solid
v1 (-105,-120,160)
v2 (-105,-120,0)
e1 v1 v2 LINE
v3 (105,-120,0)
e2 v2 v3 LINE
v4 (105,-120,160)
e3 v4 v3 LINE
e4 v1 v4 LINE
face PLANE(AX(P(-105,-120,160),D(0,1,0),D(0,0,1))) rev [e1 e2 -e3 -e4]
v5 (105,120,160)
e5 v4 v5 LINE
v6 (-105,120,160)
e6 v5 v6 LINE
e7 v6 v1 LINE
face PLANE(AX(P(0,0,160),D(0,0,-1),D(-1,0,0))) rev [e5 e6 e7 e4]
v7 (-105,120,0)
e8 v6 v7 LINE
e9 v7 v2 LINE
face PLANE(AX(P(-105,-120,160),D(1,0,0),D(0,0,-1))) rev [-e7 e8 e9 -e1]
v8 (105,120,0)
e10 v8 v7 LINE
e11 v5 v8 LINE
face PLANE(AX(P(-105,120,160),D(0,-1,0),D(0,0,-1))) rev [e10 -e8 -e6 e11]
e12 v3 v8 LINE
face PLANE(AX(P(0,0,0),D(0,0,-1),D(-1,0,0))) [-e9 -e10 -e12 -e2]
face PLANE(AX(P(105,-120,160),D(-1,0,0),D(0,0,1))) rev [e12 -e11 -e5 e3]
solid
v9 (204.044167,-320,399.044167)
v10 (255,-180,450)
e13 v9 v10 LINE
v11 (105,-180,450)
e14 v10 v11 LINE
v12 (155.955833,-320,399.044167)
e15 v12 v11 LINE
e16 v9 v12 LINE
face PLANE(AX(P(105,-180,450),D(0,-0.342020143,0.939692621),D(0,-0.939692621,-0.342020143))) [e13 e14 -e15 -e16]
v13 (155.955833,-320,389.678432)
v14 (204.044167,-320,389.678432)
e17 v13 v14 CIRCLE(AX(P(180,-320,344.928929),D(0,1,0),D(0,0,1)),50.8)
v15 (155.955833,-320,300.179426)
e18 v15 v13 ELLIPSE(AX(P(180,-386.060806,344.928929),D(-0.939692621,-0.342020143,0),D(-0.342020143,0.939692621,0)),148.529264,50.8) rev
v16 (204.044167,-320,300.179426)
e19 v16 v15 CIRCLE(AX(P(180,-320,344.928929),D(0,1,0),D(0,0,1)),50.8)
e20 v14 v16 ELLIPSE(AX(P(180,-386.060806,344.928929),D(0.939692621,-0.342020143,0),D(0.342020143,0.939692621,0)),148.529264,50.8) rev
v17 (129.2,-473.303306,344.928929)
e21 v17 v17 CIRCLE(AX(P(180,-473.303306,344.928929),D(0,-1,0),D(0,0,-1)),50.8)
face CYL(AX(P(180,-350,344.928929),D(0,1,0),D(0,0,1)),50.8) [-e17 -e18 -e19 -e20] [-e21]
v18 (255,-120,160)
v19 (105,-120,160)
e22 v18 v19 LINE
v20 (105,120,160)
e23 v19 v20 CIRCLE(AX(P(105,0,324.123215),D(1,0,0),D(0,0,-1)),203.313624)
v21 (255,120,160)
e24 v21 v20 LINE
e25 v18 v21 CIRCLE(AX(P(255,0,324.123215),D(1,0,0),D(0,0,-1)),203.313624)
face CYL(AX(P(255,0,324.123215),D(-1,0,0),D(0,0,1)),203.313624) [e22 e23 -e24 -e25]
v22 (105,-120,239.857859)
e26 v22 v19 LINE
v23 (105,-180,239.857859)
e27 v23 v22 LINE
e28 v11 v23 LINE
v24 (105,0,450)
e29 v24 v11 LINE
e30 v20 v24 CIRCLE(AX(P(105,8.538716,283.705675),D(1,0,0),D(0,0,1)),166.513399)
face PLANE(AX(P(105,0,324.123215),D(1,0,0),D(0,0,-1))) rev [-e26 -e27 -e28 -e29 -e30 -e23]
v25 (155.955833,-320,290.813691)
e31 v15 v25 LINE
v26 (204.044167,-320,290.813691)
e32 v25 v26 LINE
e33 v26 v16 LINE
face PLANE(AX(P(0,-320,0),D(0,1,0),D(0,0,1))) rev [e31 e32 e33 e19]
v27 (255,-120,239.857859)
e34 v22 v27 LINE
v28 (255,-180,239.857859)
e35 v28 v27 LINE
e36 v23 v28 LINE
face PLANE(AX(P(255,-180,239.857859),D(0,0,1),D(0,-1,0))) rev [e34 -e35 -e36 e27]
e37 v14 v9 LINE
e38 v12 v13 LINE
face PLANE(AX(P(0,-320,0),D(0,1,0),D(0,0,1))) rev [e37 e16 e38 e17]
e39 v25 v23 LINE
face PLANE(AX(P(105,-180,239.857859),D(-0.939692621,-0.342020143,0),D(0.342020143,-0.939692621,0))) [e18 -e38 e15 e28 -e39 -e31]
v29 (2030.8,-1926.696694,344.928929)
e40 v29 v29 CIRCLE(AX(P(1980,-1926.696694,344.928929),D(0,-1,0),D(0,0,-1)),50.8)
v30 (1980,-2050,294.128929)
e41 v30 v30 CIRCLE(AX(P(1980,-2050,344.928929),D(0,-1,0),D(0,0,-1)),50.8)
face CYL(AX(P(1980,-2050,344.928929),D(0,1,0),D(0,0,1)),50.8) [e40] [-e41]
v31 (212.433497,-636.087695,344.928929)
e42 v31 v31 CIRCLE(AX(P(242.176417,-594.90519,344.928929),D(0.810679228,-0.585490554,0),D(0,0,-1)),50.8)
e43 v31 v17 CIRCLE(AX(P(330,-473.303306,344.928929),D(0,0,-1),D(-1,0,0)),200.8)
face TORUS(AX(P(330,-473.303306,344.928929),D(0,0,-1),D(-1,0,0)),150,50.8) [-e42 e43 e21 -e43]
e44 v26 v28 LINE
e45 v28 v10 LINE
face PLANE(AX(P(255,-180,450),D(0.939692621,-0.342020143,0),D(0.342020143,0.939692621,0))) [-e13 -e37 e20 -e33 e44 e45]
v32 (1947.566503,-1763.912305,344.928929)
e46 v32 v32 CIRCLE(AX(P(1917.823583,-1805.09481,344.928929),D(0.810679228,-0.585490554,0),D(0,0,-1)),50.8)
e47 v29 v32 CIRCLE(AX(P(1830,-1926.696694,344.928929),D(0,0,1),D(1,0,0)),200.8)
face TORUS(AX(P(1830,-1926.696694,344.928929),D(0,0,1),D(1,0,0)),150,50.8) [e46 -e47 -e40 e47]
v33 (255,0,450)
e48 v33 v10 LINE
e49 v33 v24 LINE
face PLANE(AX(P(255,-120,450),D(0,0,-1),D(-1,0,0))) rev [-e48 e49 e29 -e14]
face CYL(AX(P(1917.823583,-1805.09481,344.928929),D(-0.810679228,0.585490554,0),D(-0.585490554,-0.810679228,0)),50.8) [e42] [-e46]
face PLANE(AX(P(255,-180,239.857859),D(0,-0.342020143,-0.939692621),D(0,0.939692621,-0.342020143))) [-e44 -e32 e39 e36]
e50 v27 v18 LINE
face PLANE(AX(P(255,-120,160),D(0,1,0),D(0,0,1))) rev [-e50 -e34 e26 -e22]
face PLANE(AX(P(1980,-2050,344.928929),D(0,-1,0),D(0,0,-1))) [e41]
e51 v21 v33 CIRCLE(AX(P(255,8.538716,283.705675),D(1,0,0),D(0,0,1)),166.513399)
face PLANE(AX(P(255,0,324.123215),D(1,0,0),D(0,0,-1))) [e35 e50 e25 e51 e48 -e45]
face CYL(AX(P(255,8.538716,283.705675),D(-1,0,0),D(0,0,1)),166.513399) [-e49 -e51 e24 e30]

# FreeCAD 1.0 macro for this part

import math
import FreeCAD as App
import Part
import Sketcher

V = App.Vector


def add_polygon(sketch, points):
    """Adds a closed chain of lines whose ends are joined by coincident constraints."""
    first, n = sketch.GeometryCount, len(points)
    for a, b in zip(points, points[1:] + points[:1]):
        sketch.addGeometry(Part.LineSegment(App.Vector(*a, 0), App.Vector(*b, 0)), False)
    for i in range(n):
        sketch.addConstraint(Sketcher.Constraint("Coincident", first + i, 2, first + (i + 1) % n, 1))

doc = App.newDocument("Part")
body = doc.addObject("PartDesign::Body", "Body")

# Sketch on XY plane
sketch1 = body.newObject("Sketcher::SketchObject", "Sketch")
sketch1.AttachmentSupport = (doc.getObject("XY_Plane"), [""])
sketch1.MapMode = "FlatFace"
add_polygon(sketch1, [(-105, 120), (-105, -120), (105, -120), (105, 120)])  # lines 0-3
sketch1.addConstraint(Sketcher.Constraint("Vertical", 0))
sketch1.addConstraint(Sketcher.Constraint("Horizontal", 1))
sketch1.addConstraint(Sketcher.Constraint("Vertical", 2))
sketch1.addConstraint(Sketcher.Constraint("Horizontal", 3))
sketch1.addConstraint(Sketcher.Constraint("Symmetric", 0, 2, 2, 2, -1, 1))
sketch1.addConstraint(Sketcher.Constraint("DistanceX", 1, 1, 1, 2, 210.0))
sketch1.addConstraint(Sketcher.Constraint("DistanceY", 0, 2, 0, 1, 240.0))
pad1 = body.newObject("PartDesign::Pad", "Pad")
pad1.Profile = sketch1
pad1.Length = 160
body2 = doc.addObject("PartDesign::Body", "Body001")

# Sketch on YZ plane
sketch2 = body2.newObject("Sketcher::SketchObject", "Sketch001")
sketch2.AttachmentSupport = (doc.getObject("YZ_Plane001"), [""])
sketch2.MapMode = "FlatFace"
sketch2.AttachmentOffset = App.Placement(V(0, 0, 105), App.Rotation())
sketch2.addGeometry(Part.LineSegment(V(-120, 450, 0), V(-120, 160, 0)), False)
sketch2.addGeometry(Part.ArcOfCircle(Part.Circle(V(0, 324, 0), V(0, 0, 1), 203), math.radians(-126), math.radians(-54)), False)
sketch2.addGeometry(Part.ArcOfCircle(Part.Circle(V(9, 284, 0), V(0, 0, 1), 167), math.radians(-48), math.radians(93)), False)
sketch2.addGeometry(Part.LineSegment(V(0, 450, 0), V(-120, 450, 0)), False)
sketch2.addConstraint(Sketcher.Constraint("Coincident", 0, 2, 1, 1))
sketch2.addConstraint(Sketcher.Constraint("Coincident", 1, 2, 2, 1))
sketch2.addConstraint(Sketcher.Constraint("Coincident", 2, 2, 3, 1))
sketch2.addConstraint(Sketcher.Constraint("Coincident", 3, 2, 0, 1))
sketch2.addConstraint(Sketcher.Constraint("Vertical", 0))
sketch2.addConstraint(Sketcher.Constraint("Horizontal", 3))
sketch2.addConstraint(Sketcher.Constraint("Symmetric", 0, 2, 1, 2, -2))
sketch2.addConstraint(Sketcher.Constraint("PointOnObject", 2, 2, -2))
sketch2.addConstraint(Sketcher.Constraint("DistanceX", 3, 2, 3, 1, 120.0))
sketch2.addConstraint(Sketcher.Constraint("DistanceY", 0, 2, 0, 1, 290.0))
sketch2.addConstraint(Sketcher.Constraint("DistanceY", -1, 1, 0, 2, 160.0))
sketch2.addConstraint(Sketcher.Constraint("Radius", 2, 166.513399))
sketch2.addConstraint(Sketcher.Constraint("Radius", 1, 203.313624))
pad2 = body2.newObject("PartDesign::Pad", "Pad001")
pad2.Profile = sketch2
pad2.Length = 150

# Sketch on XZ plane
sketch3 = body2.newObject("Sketcher::SketchObject", "Sketch002")
sketch3.AttachmentSupport = (doc.getObject("XZ_Plane001"), [""])
sketch3.MapMode = "FlatFace"
sketch3.AttachmentOffset = App.Placement(V(0, 0, 120), App.Rotation())
add_polygon(sketch3, [(105, 450), (105, 240), (255, 240), (255, 450)])  # lines 0-3
sketch3.addConstraint(Sketcher.Constraint("Vertical", 0))
sketch3.addConstraint(Sketcher.Constraint("Horizontal", 1))
sketch3.addConstraint(Sketcher.Constraint("Vertical", 2))
sketch3.addConstraint(Sketcher.Constraint("Horizontal", 3))
sketch3.addConstraint(Sketcher.Constraint("DistanceX", 1, 1, 1, 2, 150.0))
sketch3.addConstraint(Sketcher.Constraint("DistanceX", -1, 1, 0, 2, 105.0))
sketch3.addConstraint(Sketcher.Constraint("DistanceY", -1, 1, 2, 2, 450.0))
sketch3.addConstraint(Sketcher.Constraint("DistanceY", 0, 2, 0, 1, 210.142141))
pad3 = body2.newObject("PartDesign::Pad", "Pad002")
pad3.Profile = sketch3
pad3.Length = 60

# Sketch on XZ plane
sketch4 = body2.newObject("Sketcher::SketchObject", "Sketch003")
sketch4.AttachmentSupport = (doc.getObject("XZ_Plane001"), [""])
sketch4.MapMode = "FlatFace"
sketch4.AttachmentOffset = App.Placement(V(0, 0, 180), App.Rotation())
sketch4.addGeometry(Part.Circle(V(180, 345, 0), V(0, 0, 1), 51), False)
sketch4.addConstraint(Sketcher.Constraint("Diameter", 0, 101.6))
sketch4.addConstraint(Sketcher.Constraint("DistanceX", -1, 1, 0, 3, 180.0))
sketch4.addConstraint(Sketcher.Constraint("DistanceY", -1, 1, 0, 3, 344.928929))
pad4 = body2.newObject("PartDesign::Pad", "Pad003")
pad4.Profile = sketch4
pad4.Length = 170

# Sketch on XZ plane
sketch5 = body2.newObject("Sketcher::SketchObject", "Sketch004")
sketch5.AttachmentSupport = (doc.getObject("XZ_Plane001"), [""])
sketch5.MapMode = "FlatFace"
sketch5.AttachmentOffset = App.Placement(V(0, 0, 180), App.Rotation())
add_polygon(sketch5, [(105, 450), (105, 240), (255, 240), (255, 450)])  # lines 0-3
sketch5.addConstraint(Sketcher.Constraint("Vertical", 0))
sketch5.addConstraint(Sketcher.Constraint("Horizontal", 1))
sketch5.addConstraint(Sketcher.Constraint("Vertical", 2))
sketch5.addConstraint(Sketcher.Constraint("Horizontal", 3))
sketch5.addConstraint(Sketcher.Constraint("DistanceX", 1, 1, 1, 2, 150.0))
sketch5.addConstraint(Sketcher.Constraint("DistanceX", -1, 1, 0, 2, 105.0))
sketch5.addConstraint(Sketcher.Constraint("DistanceY", -1, 1, 2, 2, 450.0))
sketch5.addConstraint(Sketcher.Constraint("DistanceY", 0, 2, 0, 1, 210.142141))
pad5 = body2.newObject("PartDesign::Pad", "Pad004")
pad5.Profile = sketch5
pad5.Length = 140
pad5.TaperAngle = -20

# Sketch on XZ plane
sketch6 = body2.newObject("Sketcher::SketchObject", "Sketch005")
sketch6.AttachmentSupport = (doc.getObject("XZ_Plane001"), [""])
sketch6.MapMode = "FlatFace"
sketch6.AttachmentOffset = App.Placement(V(0, 0, 350), App.Rotation())
sketch6.addGeometry(Part.Circle(V(180, 345, 0), V(0, 0, 1), 51), False)
sketch6.addConstraint(Sketcher.Constraint("Diameter", 0, 101.6))
sketch6.addConstraint(Sketcher.Constraint("DistanceX", -1, 1, 0, 3, 180.0))
sketch6.addConstraint(Sketcher.Constraint("DistanceY", -1, 1, 0, 3, 344.928929))

# Sketch on XY plane
sketch7 = body2.newObject("Sketcher::SketchObject", "Sketch006")
sketch7.AttachmentSupport = (doc.getObject("XY_Plane001"), [""])
sketch7.MapMode = "FlatFace"
sketch7.AttachmentOffset = App.Placement(V(0, 0, 344.928929), App.Rotation())
sketch7.addGeometry(Part.LineSegment(V(1980, -2050, 0), V(1980, -1927, 0)), False)
sketch7.addGeometry(Part.ArcOfCircle(Part.Circle(V(1830, -1927, 0), V(0, 0, 1), 150), math.radians(0), math.radians(54)), False)
sketch7.addGeometry(Part.LineSegment(V(1918, -1805, 0), V(242, -595, 0)), False)
sketch7.addGeometry(Part.ArcOfCircle(Part.Circle(V(330, -473, 0), V(0, 0, 1), 150), math.radians(180), math.radians(234)), False)
sketch7.addGeometry(Part.LineSegment(V(180, -473, 0), V(180, -350, 0)), False)
sketch7.addConstraint(Sketcher.Constraint("Tangent", 0, 2, 1, 1))
sketch7.addConstraint(Sketcher.Constraint("Tangent", 1, 2, 2, 1))
sketch7.addConstraint(Sketcher.Constraint("Tangent", 2, 2, 3, 2))
sketch7.addConstraint(Sketcher.Constraint("Tangent", 3, 1, 4, 1))
sketch7.addConstraint(Sketcher.Constraint("Vertical", 0))
sketch7.addConstraint(Sketcher.Constraint("Vertical", 4))
sketch7.addConstraint(Sketcher.Constraint("Equal", 1, 3))
sketch7.addConstraint(Sketcher.Constraint("Equal", 0, 4))
sketch7.addConstraint(Sketcher.Constraint("Radius", 1, 150.0))
sketch7.addConstraint(Sketcher.Constraint("DistanceX", -1, 1, 1, 3, 1830.0))
sketch7.addConstraint(Sketcher.Constraint("DistanceX", -1, 1, 3, 3, 330.0))
sketch7.addConstraint(Sketcher.Constraint("DistanceY", 0, 1, -1, 1, 2050.0))
sketch7.addConstraint(Sketcher.Constraint("DistanceY", 4, 2, -1, 1, 350.0))
sketch7.addConstraint(Sketcher.Constraint("DistanceY", 0, 1, 0, 2, 123.303306))
doc.recompute()

additivepipe = body2.newObject("PartDesign::AdditivePipe", "AdditivePipe")
additivepipe.Profile = sketch6
additivepipe.Spine = (sketch7, ["Edge1", "Edge2", "Edge3", "Edge4", "Edge5"])

doc.recompute()
